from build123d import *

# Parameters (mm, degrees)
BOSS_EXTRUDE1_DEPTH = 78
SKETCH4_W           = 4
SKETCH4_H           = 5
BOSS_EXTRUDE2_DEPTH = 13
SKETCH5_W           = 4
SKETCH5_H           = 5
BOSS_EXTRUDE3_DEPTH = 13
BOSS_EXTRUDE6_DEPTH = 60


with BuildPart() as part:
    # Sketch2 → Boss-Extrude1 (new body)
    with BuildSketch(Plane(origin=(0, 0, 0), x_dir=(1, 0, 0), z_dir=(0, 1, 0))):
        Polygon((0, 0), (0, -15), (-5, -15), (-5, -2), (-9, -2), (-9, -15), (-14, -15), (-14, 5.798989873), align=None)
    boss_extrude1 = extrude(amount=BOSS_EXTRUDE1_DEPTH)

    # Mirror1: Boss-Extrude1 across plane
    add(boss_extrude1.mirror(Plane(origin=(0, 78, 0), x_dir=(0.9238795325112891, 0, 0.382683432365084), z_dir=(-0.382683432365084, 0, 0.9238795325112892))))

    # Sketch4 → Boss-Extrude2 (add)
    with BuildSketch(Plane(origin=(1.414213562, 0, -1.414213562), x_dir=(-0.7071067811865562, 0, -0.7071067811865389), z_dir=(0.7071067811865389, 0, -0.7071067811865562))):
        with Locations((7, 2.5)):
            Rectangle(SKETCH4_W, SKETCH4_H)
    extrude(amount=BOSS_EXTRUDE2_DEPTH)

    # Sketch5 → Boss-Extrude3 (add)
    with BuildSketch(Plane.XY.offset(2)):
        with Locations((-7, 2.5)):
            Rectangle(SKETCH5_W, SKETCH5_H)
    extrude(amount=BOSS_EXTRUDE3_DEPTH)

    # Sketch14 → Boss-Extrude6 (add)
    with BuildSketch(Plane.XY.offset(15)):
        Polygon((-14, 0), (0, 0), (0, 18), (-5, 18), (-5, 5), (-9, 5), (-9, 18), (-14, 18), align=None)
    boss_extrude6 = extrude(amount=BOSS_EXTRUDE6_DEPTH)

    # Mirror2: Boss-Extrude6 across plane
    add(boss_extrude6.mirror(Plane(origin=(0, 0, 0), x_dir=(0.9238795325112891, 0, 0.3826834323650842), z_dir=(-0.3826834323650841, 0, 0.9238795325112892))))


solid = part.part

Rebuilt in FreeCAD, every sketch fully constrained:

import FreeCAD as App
import Part
import Sketcher
from FreeCAD import Vector
Q = App.Units.Quantity


def add_polygon(sketch, points):
    """Adds a closed chain of lines whose ends are joined by coincident constraints."""
    first, n = sketch.GeometryCount, len(points)
    for a, b in zip(points, points[1:] + points[:1]):
        sketch.addGeometry(Part.LineSegment(App.Vector(*a, 0), App.Vector(*b, 0)), False)
    for i in range(n):
        sketch.addConstraint(Sketcher.Constraint("Coincident", first + i, 2, first + (i + 1) % n, 1))

doc = App.newDocument("Part")
body = doc.addObject("PartDesign::Body", "Body")

sketch1 = body.newObject("Sketcher::SketchObject", "Sketch")
sketch1.AttachmentSupport = (doc.getObject("XZ_Plane"), [""])
sketch1.MapMode = "FlatFace"
add_polygon(sketch1, [(0, 15), (0, 0), (-14, -5.8), (-14, 15), (-9, 15), (-9, 2), (-5, 2), (-5, 15)])
sketch1.addConstraint([
    Sketcher.Constraint("Vertical", 0),
    Sketcher.Constraint("Vertical", 2),
    Sketcher.Constraint("Horizontal", 3),
    Sketcher.Constraint("Vertical", 4),
    Sketcher.Constraint("Horizontal", 5),
    Sketcher.Constraint("Vertical", 6),
    Sketcher.Constraint("Horizontal", 7),
    Sketcher.Constraint("Coincident", 0, 2, -1, 1),
    Sketcher.Constraint("Horizontal", 3, 2, 6, 2),
    Sketcher.Constraint("Equal", 3, 7),
    Sketcher.Constraint("DistanceX", 3, 1, 3, 2, 5.0),
    Sketcher.Constraint("DistanceX", 5, 1, 5, 2, 4.0),
    Sketcher.Constraint("DistanceY", 0, 2, 0, 1, 15.0),
    Sketcher.Constraint("DistanceY", 4, 2, 4, 1, 13.0),
    Sketcher.Constraint("Angle", 1, Q("-157.5 deg")),
])
pad1 = body.newObject("PartDesign::Pad", "Pad")
pad1.Profile = sketch1
pad1.Length = 78
pad1.Reversed = True
doc.recompute()

datumplane = body.newObject("PartDesign::Plane", "DatumPlane")
datumplane.Placement = App.Placement(Vector(0, 0, 0), App.Rotation(Vector(-0.923879533, 0, -0.382683432), Vector(0, -1, 0), Vector(-0.382683432, 0, 0.923879533), "ZXY"))
mirrored = body.newObject("PartDesign::Mirrored", "Mirrored")
mirrored.Originals = [pad1]
mirrored.MirrorPlane = (datumplane, [""])
body.Tip = mirrored

sketch2 = body.newObject("Sketcher::SketchObject", "Sketch001")
sketch2.Placement = App.Placement(Vector(1.414214, 0, -1.414214), App.Rotation(Vector(-0.707106781, 0, -0.707106781), Vector(0, 0.999999999, 0), Vector(0.707106781, 0, -0.707106781), "ZXY"))
add_polygon(sketch2, [(5, 5), (5, 0), (9, 0), (9, 5)])
sketch2.addConstraint([
    Sketcher.Constraint("Vertical", 0),
    Sketcher.Constraint("Horizontal", 1),
    Sketcher.Constraint("Vertical", 2),
    Sketcher.Constraint("Horizontal", 3),
    Sketcher.Constraint("PointOnObject", 0, 2, -1),
    Sketcher.Constraint("DistanceX", 1, 1, 1, 2, 4.0),
    Sketcher.Constraint("DistanceY", 0, 2, 0, 1, 5.0),
    Sketcher.Constraint("DistanceX", -1, 1, 0, 2, 5.0),
])
pad2 = body.newObject("PartDesign::Pad", "Pad001")
pad2.Profile = sketch2
pad2.Length = 13

sketch3 = body.newObject("Sketcher::SketchObject", "Sketch002")
sketch3.AttachmentSupport = (doc.getObject("XY_Plane"), [""])
sketch3.MapMode = "FlatFace"
sketch3.AttachmentOffset = App.Placement(Vector(0, 0, 2), App.Rotation())
add_polygon(sketch3, [(-9, 5), (-9, 0), (-5, 0), (-5, 5)])
sketch3.addConstraint([
    Sketcher.Constraint("Vertical", 0),
    Sketcher.Constraint("Horizontal", 1),
    Sketcher.Constraint("Vertical", 2),
    Sketcher.Constraint("Horizontal", 3),
    Sketcher.Constraint("PointOnObject", 0, 2, -1),
    Sketcher.Constraint("DistanceX", 1, 1, 1, 2, 4.0),
    Sketcher.Constraint("DistanceY", 0, 2, 0, 1, 5.0),
    Sketcher.Constraint("DistanceX", 0, 2, -1, 1, 9.0),
])
pad3 = body.newObject("PartDesign::Pad", "Pad002")
pad3.Profile = sketch3
pad3.Length = 13

sketch4 = body.newObject("Sketcher::SketchObject", "Sketch003")
sketch4.AttachmentSupport = (doc.getObject("XY_Plane"), [""])
sketch4.MapMode = "FlatFace"
sketch4.AttachmentOffset = App.Placement(Vector(0, 0, 15), App.Rotation())
add_polygon(sketch4, [(-14, 0), (0, 0), (0, 18), (-5, 18), (-5, 5), (-9, 5), (-9, 18), (-14, 18)])
sketch4.addConstraint([
    Sketcher.Constraint("Horizontal", 0),
    Sketcher.Constraint("Vertical", 1),
    Sketcher.Constraint("Horizontal", 2),
    Sketcher.Constraint("Vertical", 3),
    Sketcher.Constraint("Horizontal", 4),
    Sketcher.Constraint("Vertical", 5),
    Sketcher.Constraint("Horizontal", 6),
    Sketcher.Constraint("Vertical", 7),
    Sketcher.Constraint("Coincident", 0, 2, -1, 1),
    Sketcher.Constraint("Horizontal", 2, 2, 5, 2),
    Sketcher.Constraint("Equal", 2, 6),
    Sketcher.Constraint("DistanceX", 0, 1, 0, 2, 14.0),
    Sketcher.Constraint("DistanceX", 2, 2, 2, 1, 5.0),
    Sketcher.Constraint("DistanceY", 1, 1, 1, 2, 18.0),
    Sketcher.Constraint("DistanceY", 3, 2, 3, 1, 13.0),
])
pad4 = body.newObject("PartDesign::Pad", "Pad003")
pad4.Profile = sketch4
pad4.Length = 60
doc.recompute()

datumplane2 = body.newObject("PartDesign::Plane", "DatumPlane001")
datumplane2.Placement = App.Placement(Vector(0, 0, 0), App.Rotation(Vector(-0.923879533, 0, -0.382683432), Vector(0, -1, 0), Vector(-0.382683432, 0, 0.923879533), "ZXY"))
mirrored2 = body.newObject("PartDesign::Mirrored", "Mirrored001")
mirrored2.Originals = [pad4]
mirrored2.MirrorPlane = (datumplane2, [""])
body.Tip = mirrored2

doc.recompute()
